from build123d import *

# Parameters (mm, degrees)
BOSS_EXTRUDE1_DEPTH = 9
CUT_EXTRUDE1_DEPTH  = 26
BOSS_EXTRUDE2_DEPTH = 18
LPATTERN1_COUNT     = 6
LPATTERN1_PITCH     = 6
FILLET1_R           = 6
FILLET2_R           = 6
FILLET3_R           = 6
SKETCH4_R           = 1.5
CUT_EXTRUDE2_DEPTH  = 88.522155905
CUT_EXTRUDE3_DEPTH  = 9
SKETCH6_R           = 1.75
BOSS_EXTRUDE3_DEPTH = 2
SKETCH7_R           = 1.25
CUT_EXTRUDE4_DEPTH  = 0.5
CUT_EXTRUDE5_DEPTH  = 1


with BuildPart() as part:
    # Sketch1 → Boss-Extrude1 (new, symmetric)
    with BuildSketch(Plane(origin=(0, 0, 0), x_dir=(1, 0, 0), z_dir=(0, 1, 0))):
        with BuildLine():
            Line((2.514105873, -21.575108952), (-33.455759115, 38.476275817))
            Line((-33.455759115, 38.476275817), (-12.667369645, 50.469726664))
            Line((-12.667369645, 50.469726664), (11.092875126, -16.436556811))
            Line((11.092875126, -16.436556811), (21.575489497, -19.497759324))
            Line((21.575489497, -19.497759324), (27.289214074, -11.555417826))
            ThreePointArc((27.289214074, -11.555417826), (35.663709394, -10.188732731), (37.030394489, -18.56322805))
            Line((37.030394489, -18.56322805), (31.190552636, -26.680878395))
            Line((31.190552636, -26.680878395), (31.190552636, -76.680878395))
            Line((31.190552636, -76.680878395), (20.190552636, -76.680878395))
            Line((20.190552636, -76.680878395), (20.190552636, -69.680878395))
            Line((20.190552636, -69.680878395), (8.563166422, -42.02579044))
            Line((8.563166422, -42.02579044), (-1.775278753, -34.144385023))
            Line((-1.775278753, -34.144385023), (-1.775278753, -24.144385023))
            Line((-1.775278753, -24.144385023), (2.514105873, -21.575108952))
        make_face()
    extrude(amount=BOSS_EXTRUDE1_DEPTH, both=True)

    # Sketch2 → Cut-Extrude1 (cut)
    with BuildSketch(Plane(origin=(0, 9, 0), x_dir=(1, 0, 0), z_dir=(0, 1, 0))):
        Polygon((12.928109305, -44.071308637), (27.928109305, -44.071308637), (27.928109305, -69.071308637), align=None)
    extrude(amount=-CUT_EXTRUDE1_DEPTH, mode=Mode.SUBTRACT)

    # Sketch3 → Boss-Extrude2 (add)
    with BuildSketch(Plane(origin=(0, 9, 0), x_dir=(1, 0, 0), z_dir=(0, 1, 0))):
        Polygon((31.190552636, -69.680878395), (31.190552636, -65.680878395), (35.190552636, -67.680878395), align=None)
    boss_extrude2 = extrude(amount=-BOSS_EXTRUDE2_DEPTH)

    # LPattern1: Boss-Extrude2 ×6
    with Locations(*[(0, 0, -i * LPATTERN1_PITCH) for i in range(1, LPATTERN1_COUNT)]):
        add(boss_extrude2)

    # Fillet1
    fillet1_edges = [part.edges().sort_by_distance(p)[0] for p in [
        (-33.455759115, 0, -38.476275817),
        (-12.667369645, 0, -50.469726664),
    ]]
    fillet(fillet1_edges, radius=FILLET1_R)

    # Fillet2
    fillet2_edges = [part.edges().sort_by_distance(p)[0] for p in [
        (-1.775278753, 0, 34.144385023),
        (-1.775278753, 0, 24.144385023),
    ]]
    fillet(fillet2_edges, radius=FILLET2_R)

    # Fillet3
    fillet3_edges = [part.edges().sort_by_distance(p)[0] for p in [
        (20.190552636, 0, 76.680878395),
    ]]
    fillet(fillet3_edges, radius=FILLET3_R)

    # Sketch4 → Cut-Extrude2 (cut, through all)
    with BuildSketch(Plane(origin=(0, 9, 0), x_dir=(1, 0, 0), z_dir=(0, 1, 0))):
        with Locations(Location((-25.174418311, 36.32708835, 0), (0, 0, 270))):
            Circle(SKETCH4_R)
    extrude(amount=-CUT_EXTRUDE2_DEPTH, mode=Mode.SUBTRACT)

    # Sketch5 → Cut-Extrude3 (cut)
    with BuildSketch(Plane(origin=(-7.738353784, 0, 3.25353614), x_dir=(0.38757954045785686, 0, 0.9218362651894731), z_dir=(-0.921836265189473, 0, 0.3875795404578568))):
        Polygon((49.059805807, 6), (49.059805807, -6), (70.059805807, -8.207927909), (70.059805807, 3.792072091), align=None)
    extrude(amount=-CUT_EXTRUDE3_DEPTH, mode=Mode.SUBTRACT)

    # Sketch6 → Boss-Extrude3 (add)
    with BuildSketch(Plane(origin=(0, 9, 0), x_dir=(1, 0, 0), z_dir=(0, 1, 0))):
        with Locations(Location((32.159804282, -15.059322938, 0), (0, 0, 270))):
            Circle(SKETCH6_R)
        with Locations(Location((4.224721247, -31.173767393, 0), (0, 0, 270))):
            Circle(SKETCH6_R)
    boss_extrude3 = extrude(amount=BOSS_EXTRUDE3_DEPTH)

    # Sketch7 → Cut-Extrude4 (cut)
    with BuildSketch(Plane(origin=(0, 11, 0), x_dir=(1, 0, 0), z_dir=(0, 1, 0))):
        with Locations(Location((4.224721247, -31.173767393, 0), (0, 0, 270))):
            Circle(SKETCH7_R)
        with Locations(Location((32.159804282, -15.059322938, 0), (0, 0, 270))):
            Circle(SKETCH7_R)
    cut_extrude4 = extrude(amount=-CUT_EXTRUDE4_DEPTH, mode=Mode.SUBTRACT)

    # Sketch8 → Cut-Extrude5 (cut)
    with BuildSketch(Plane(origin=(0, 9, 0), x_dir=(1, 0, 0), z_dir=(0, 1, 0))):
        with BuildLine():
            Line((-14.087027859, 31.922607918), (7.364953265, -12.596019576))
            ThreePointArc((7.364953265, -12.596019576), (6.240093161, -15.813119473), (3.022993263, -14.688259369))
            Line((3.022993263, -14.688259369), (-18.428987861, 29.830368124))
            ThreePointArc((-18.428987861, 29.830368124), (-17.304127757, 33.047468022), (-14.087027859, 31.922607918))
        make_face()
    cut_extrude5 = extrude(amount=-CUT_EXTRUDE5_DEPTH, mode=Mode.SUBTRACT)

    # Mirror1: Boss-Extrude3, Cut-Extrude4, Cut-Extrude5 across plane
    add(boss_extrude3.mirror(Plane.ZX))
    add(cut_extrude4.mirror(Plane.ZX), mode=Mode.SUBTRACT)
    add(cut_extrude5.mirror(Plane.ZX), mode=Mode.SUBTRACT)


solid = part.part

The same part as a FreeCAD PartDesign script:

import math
import FreeCAD as App
import Part
import Sketcher
from FreeCAD import Vector
Q = App.Units.Quantity


def edges_at(feature, points):
    """Names of the edges that pass closest to the given points."""
    edges = feature.Shape.Edges
    near = lambda p: min(range(len(edges)), key=lambda i: edges[i].distToShape(Part.Vertex(*p))[0])
    return sorted({f"Edge{near(p) + 1}" for p in points})

doc = App.newDocument("Part")
body = doc.addObject("PartDesign::Body", "Body")

sketch1 = body.newObject("Sketcher::SketchObject", "Sketch")
sketch1.AttachmentSupport = (doc.getObject("XZ_Plane"), [""])
sketch1.MapMode = "FlatFace"
sketch1.addGeometry([
    Part.LineSegment(Vector(-33.455759, -38.476276, 0), Vector(2.514106, 21.575109, 0)),
    Part.LineSegment(Vector(2.514106, 21.575109, 0), Vector(-1.775279, 24.144385, 0)),
    Part.LineSegment(Vector(-1.775279, 24.144385, 0), Vector(-1.775279, 34.144385, 0)),
    Part.LineSegment(Vector(-1.775279, 34.144385, 0), Vector(8.563166, 42.02579, 0)),
    Part.LineSegment(Vector(8.563166, 42.02579, 0), Vector(20.190553, 69.680878, 0)),
    Part.LineSegment(Vector(20.190553, 69.680878, 0), Vector(20.190553, 76.680878, 0)),
    Part.LineSegment(Vector(20.190553, 76.680878, 0), Vector(31.190553, 76.680878, 0)),
    Part.LineSegment(Vector(31.190553, 76.680878, 0), Vector(31.190553, 26.680878, 0)),
    Part.LineSegment(Vector(31.190553, 26.680878, 0), Vector(37.030394, 18.563228, 0)),
    Part.ArcOfCircle(Part.Circle(Vector(32.159804, 15.059323, 0), Vector(0, 0, 1), 6), math.radians(-144.26874), math.radians(35.73126)),
    Part.LineSegment(Vector(27.289214, 11.555418, 0), Vector(21.575489, 19.497759, 0)),
    Part.LineSegment(Vector(21.575489, 19.497759, 0), Vector(11.092875, 16.436557, 0)),
    Part.LineSegment(Vector(11.092875, 16.436557, 0), Vector(-12.66737, -50.469727, 0)),
    Part.LineSegment(Vector(-12.66737, -50.469727, 0), Vector(-33.455759, -38.476276, 0)),
], False)
sketch1.addConstraint([
    Sketcher.Constraint("Coincident", 0, 2, 1, 1),
    Sketcher.Constraint("Coincident", 1, 2, 2, 1),
    Sketcher.Constraint("Coincident", 2, 2, 3, 1),
    Sketcher.Constraint("Coincident", 3, 2, 4, 1),
    Sketcher.Constraint("Coincident", 4, 2, 5, 1),
    Sketcher.Constraint("Coincident", 5, 2, 6, 1),
    Sketcher.Constraint("Coincident", 6, 2, 7, 1),
    Sketcher.Constraint("Coincident", 7, 2, 8, 1),
    Sketcher.Constraint("Coincident", 8, 2, 9, 2),
    Sketcher.Constraint("Coincident", 9, 1, 10, 1),
    Sketcher.Constraint("Coincident", 10, 2, 11, 1),
    Sketcher.Constraint("Coincident", 11, 2, 12, 1),
    Sketcher.Constraint("Coincident", 12, 2, 13, 1),
    Sketcher.Constraint("Coincident", 13, 2, 0, 1),
    Sketcher.Constraint("Vertical", 2),
    Sketcher.Constraint("Vertical", 5),
    Sketcher.Constraint("Horizontal", 6),
    Sketcher.Constraint("Vertical", 7),
    Sketcher.Constraint("Radius", 9, Q("6 mm")),
    Sketcher.Constraint("DistanceX", 6, 1, 6, 2, Q("11 mm")),
    Sketcher.Constraint("DistanceY", 2, 1, 2, 2, Q("10 mm")),
    Sketcher.Constraint("DistanceY", 5, 1, 5, 2, Q("7 mm")),
    Sketcher.Constraint("DistanceY", 7, 2, 7, 1, Q("50 mm")),
    Sketcher.Constraint("Distance", 0, Q("70 mm")),
    Sketcher.Constraint("Distance", 1, Q("5 mm")),
    Sketcher.Constraint("Distance", 3, Q("13 mm")),
    Sketcher.Constraint("Distance", 4, Q("30 mm")),
    Sketcher.Constraint("Distance", 8, Q("10 mm")),
    Sketcher.Constraint("Distance", 12, Q("71 mm")),
    Sketcher.Constraint("Distance", 13, Q("24 mm")),
    Sketcher.Constraint("DistanceX", 0, 2, 9, 3, Q("29.645698 mm")),
    Sketcher.Constraint("Distance", 10, Q("9.78404 mm")),
    Sketcher.Constraint("DistanceY", -1, 1, 0, 2, Q("21.575109 mm")),
    Sketcher.Constraint("DistanceX", 1, 2, -1, 1, Q("1.775279 mm")),
    Sketcher.Constraint("DistanceY", -1, 1, 3, 2, Q("42.02579 mm")),
    Sketcher.Constraint("DistanceY", -1, 1, 4, 2, Q("69.680878 mm")),
    Sketcher.Constraint("DistanceY", -1, 1, 8, 2, Q("18.563228 mm")),
    Sketcher.Constraint("DistanceX", -1, 1, 10, 2, Q("21.575489 mm")),
    Sketcher.Constraint("DistanceY", -1, 1, 10, 2, Q("19.497759 mm")),
    Sketcher.Constraint("DistanceX", 12, 2, -1, 1, Q("12.66737 mm")),
    Sketcher.Constraint("DistanceX", 13, 2, -1, 1, Q("33.455759 mm")),
    Sketcher.Constraint("DistanceX", 0, 2, 3, 2, Q("6.049061 mm")),
    Sketcher.Constraint("DistanceX", 0, 2, 11, 2, Q("8.578769 mm")),
])
pad1 = body.newObject("PartDesign::Pad", "Pad")
pad1.Profile = sketch1
pad1.Length = 18
pad1.Midplane = True

sketch2 = body.newObject("Sketcher::SketchObject", "Sketch001")
sketch2.AttachmentSupport = (doc.getObject("XZ_Plane"), [""])
sketch2.MapMode = "FlatFace"
sketch2.AttachmentOffset = App.Placement(Vector(0, 0, -9), App.Rotation())
sketch2.addGeometry([
    Part.LineSegment(Vector(28, 44, 0), Vector(13, 44, 0)),
    Part.LineSegment(Vector(13, 44, 0), Vector(28, 69, 0)),
    Part.LineSegment(Vector(28, 69, 0), Vector(28, 44, 0)),
], False)
sketch2.addConstraint([
    Sketcher.Constraint("Coincident", 0, 2, 1, 1),
    Sketcher.Constraint("Coincident", 1, 2, 2, 1),
    Sketcher.Constraint("Coincident", 2, 2, 0, 1),
    Sketcher.Constraint("Horizontal", 0),
    Sketcher.Constraint("Vertical", 2),
    Sketcher.Constraint("DistanceX", 0, 2, 0, 1, Q("15 mm")),
    Sketcher.Constraint("DistanceY", 2, 2, 2, 1, Q("25 mm")),
    Sketcher.Constraint("DistanceX", -1, 1, 0, 2, Q("12.928109 mm")),
    Sketcher.Constraint("DistanceY", -1, 1, 0, 2, Q("44.071309 mm")),
])
pocket1 = body.newObject("PartDesign::Pocket", "Pocket")
pocket1.Profile = sketch2
pocket1.Length = 26
pocket1.Reversed = True

sketch3 = body.newObject("Sketcher::SketchObject", "Sketch002")
sketch3.AttachmentSupport = (doc.getObject("XZ_Plane"), [""])
sketch3.MapMode = "FlatFace"
sketch3.AttachmentOffset = App.Placement(Vector(0, 0, -9), App.Rotation())
sketch3.addGeometry([
    Part.LineSegment(Vector(31.2, 65.7, 0), Vector(31.2, 69.7, 0)),
    Part.LineSegment(Vector(31.2, 69.7, 0), Vector(35.2, 67.7, 0)),
    Part.LineSegment(Vector(35.2, 67.7, 0), Vector(31.2, 65.7, 0)),
], False)
sketch3.addConstraint([
    Sketcher.Constraint("Coincident", 0, 2, 1, 1),
    Sketcher.Constraint("Coincident", 1, 2, 2, 1),
    Sketcher.Constraint("Coincident", 2, 2, 0, 1),
    Sketcher.Constraint("Vertical", 0),
    Sketcher.Constraint("Equal", 1, 2),
    Sketcher.Constraint("DistanceY", 0, 1, 0, 2, Q("4 mm")),
    Sketcher.Constraint("DistanceX", 0, 2, 1, 2, Q("4 mm")),
    Sketcher.Constraint("DistanceY", -1, 1, 0, 2, Q("69.680878 mm")),
    Sketcher.Constraint("DistanceX", -1, 1, 0, 2, Q("31.190553 mm")),
])
pad2 = body.newObject("PartDesign::Pad", "Pad001")
pad2.Profile = sketch3
pad2.Length = 18
doc.recompute()

linearpattern = body.newObject("PartDesign::LinearPattern", "LinearPattern")
linearpattern.Originals = [pad2]
linearpattern.Direction = (doc.getObject("Z_Axis"), [""])
linearpattern.Mode = "offset"
linearpattern.Offset = 6
linearpattern.Occurrences = 6
linearpattern.Reversed = True
body.Tip = linearpattern
doc.recompute()

fillet = body.newObject("PartDesign::Fillet", "Fillet")
fillet.Base = (linearpattern, edges_at(linearpattern, [(-33.456, 0, -38.476), (-12.667, 0, -50.47)]))
fillet.Radius = 6
doc.recompute()

fillet2 = body.newObject("PartDesign::Fillet", "Fillet001")
fillet2.Base = (fillet, edges_at(fillet, [(-1.775, 0, 34.144), (-1.775, 0, 24.144)]))
fillet2.Radius = 6
doc.recompute()

fillet3 = body.newObject("PartDesign::Fillet", "Fillet002")
fillet3.Base = (fillet2, edges_at(fillet2, [(20.191, 0, 76.681)]))
fillet3.Radius = 6

sketch4 = body.newObject("Sketcher::SketchObject", "Sketch003")
sketch4.AttachmentSupport = (doc.getObject("XZ_Plane"), [""])
sketch4.MapMode = "FlatFace"
sketch4.AttachmentOffset = App.Placement(Vector(0, 0, -9), App.Rotation())
sketch4.addGeometry(Part.Circle(Vector(-25.2, -36.3, 0), Vector(0, 0, 1), 1.5), False)
sketch4.addConstraint([
    Sketcher.Constraint("Diameter", 0, Q("3 mm")),
    Sketcher.Constraint("DistanceX", 0, 3, -1, 1, Q("25.174418 mm")),
    Sketcher.Constraint("DistanceY", 0, 3, -1, 1, Q("36.327088 mm")),
])
pocket2 = body.newObject("PartDesign::Pocket", "Pocket001")
pocket2.Profile = sketch4
pocket2.Type = "ThroughAll"
pocket2.Reversed = True

sketch5 = body.newObject("Sketcher::SketchObject", "Sketch004")
sketch5.Placement = App.Placement(Vector(-7.738354, 0, 3.253536), App.Rotation(Vector(0.38757954, 0, 0.921836265), Vector(0, 0.999999999, 0), Vector(-0.921836265, 0, 0.38757954), "ZXY"))
sketch5.addGeometry([
    Part.LineSegment(Vector(49, 6, 0), Vector(49, -6, 0)),
    Part.LineSegment(Vector(49, -6, 0), Vector(70, -8, 0)),
    Part.LineSegment(Vector(70, -8, 0), Vector(70, 4, 0)),
    Part.LineSegment(Vector(70, 4, 0), Vector(49, 6, 0)),
], False)
sketch5.addConstraint([
    Sketcher.Constraint("Coincident", 0, 2, 1, 1),
    Sketcher.Constraint("Coincident", 1, 2, 2, 1),
    Sketcher.Constraint("Coincident", 2, 2, 3, 1),
    Sketcher.Constraint("Coincident", 3, 2, 0, 1),
    Sketcher.Constraint("Vertical", 0),
    Sketcher.Constraint("Vertical", 2),
    Sketcher.Constraint("Parallel", 1, 3),
    Sketcher.Constraint("DistanceY", 0, 2, 0, 1, Q("12 mm")),
    Sketcher.Constraint("DistanceY", 0, 2, -1, 1, Q("6 mm")),
    Sketcher.Constraint("DistanceX", 0, 2, 1, 2, Q("21 mm")),
    Sketcher.Constraint("Distance", 1, Q("21.115751 mm")),
    Sketcher.Constraint("DistanceX", -1, 1, 0, 2, Q("49.059806 mm")),
])
pocket3 = body.newObject("PartDesign::Pocket", "Pocket002")
pocket3.Profile = sketch5
pocket3.Length = 9

sketch6 = body.newObject("Sketcher::SketchObject", "Sketch005")
sketch6.AttachmentSupport = (doc.getObject("XZ_Plane"), [""])
sketch6.MapMode = "FlatFace"
sketch6.AttachmentOffset = App.Placement(Vector(0, 0, -9), App.Rotation())
sketch6.addGeometry([
    Part.Circle(Vector(32.2, 15.1, 0), Vector(0, 0, 1), 1.8),
    Part.Circle(Vector(4.2, 31.2, 0), Vector(0, 0, 1), 1.8),
], False)
sketch6.addConstraint([
    Sketcher.Constraint("Equal", 0, 1),
    Sketcher.Constraint("Diameter", 0, Q("3.5 mm")),
    Sketcher.Constraint("DistanceX", -1, 1, 1, 3, Q("4.224721 mm")),
    Sketcher.Constraint("DistanceX", -1, 1, 0, 3, Q("32.159804 mm")),
    Sketcher.Constraint("DistanceY", -1, 1, 0, 3, Q("15.059323 mm")),
    Sketcher.Constraint("DistanceY", -1, 1, 1, 3, Q("31.173767 mm")),
])
pad3 = body.newObject("PartDesign::Pad", "Pad002")
pad3.Profile = sketch6
pad3.Length = 2
pad3.Reversed = True

sketch7 = body.newObject("Sketcher::SketchObject", "Sketch006")
sketch7.AttachmentSupport = (doc.getObject("XZ_Plane"), [""])
sketch7.MapMode = "FlatFace"
sketch7.AttachmentOffset = App.Placement(Vector(0, 0, -11), App.Rotation())
sketch7.addGeometry([
    Part.Circle(Vector(4.2, 31.2, 0), Vector(0, 0, 1), 1.2),
    Part.Circle(Vector(32.2, 15.1, 0), Vector(0, 0, 1), 1.2),
], False)
sketch7.addConstraint([
    Sketcher.Constraint("Equal", 0, 1),
    Sketcher.Constraint("Diameter", 0, Q("2.5 mm")),
    Sketcher.Constraint("DistanceX", -1, 1, 0, 3, Q("4.224721 mm")),
    Sketcher.Constraint("DistanceY", -1, 1, 0, 3, Q("31.173767 mm")),
    Sketcher.Constraint("DistanceX", -1, 1, 1, 3, Q("32.159804 mm")),
    Sketcher.Constraint("DistanceY", -1, 1, 1, 3, Q("15.059323 mm")),
])
pocket4 = body.newObject("PartDesign::Pocket", "Pocket003")
pocket4.Profile = sketch7
pocket4.Length = 0.5
pocket4.Reversed = True

sketch8 = body.newObject("Sketcher::SketchObject", "Sketch007")
sketch8.AttachmentSupport = (doc.getObject("XZ_Plane"), [""])
sketch8.MapMode = "FlatFace"
sketch8.AttachmentOffset = App.Placement(Vector(0, 0, -9), App.Rotation())
sketch8.addGeometry([
    Part.LineSegment(Vector(7.4, 12.6, 0), Vector(-14.1, -31.9, 0)),
    Part.ArcOfCircle(Part.Circle(Vector(-16.3, -30.9, 0), Vector(0, 0, 1), 2.4), math.radians(154), math.radians(334)),
    Part.LineSegment(Vector(-18.4, -29.8, 0), Vector(3, 14.7, 0)),
    Part.ArcOfCircle(Part.Circle(Vector(5.2, 13.6, 0), Vector(0, 0, 1), 2.4), math.radians(-26), math.radians(154)),
], False)
sketch8.addConstraint([
    Sketcher.Constraint("Tangent", 0, 2, 1, 2),
    Sketcher.Constraint("Tangent", 1, 1, 2, 1),
    Sketcher.Constraint("Tangent", 2, 2, 3, 2),
    Sketcher.Constraint("Tangent", 3, 1, 0, 1),
    Sketcher.Constraint("Equal", 1, 3),
    Sketcher.Constraint("Radius", 1, Q("2.40988 mm")),
    Sketcher.Constraint("DistanceX", 0, 2, 3, 3, Q("19.281001 mm")),
    Sketcher.Constraint("DistanceY", 1, 3, -1, 1, Q("30.876488 mm")),
    Sketcher.Constraint("DistanceY", -1, 1, 3, 3, Q("13.642139 mm")),
    Sketcher.Constraint("DistanceX", 1, 3, -1, 1, Q("16.258008 mm")),
])
pocket5 = body.newObject("PartDesign::Pocket", "Pocket004")
pocket5.Profile = sketch8
pocket5.Length = 1
pocket5.Reversed = True
doc.recompute()

mirrored = body.newObject("PartDesign::Mirrored", "Mirrored")
mirrored.Originals = [pad3, pocket4, pocket5]
mirrored.MirrorPlane = (doc.getObject("XZ_Plane"), [""])
body.Tip = mirrored

doc.recompute()
